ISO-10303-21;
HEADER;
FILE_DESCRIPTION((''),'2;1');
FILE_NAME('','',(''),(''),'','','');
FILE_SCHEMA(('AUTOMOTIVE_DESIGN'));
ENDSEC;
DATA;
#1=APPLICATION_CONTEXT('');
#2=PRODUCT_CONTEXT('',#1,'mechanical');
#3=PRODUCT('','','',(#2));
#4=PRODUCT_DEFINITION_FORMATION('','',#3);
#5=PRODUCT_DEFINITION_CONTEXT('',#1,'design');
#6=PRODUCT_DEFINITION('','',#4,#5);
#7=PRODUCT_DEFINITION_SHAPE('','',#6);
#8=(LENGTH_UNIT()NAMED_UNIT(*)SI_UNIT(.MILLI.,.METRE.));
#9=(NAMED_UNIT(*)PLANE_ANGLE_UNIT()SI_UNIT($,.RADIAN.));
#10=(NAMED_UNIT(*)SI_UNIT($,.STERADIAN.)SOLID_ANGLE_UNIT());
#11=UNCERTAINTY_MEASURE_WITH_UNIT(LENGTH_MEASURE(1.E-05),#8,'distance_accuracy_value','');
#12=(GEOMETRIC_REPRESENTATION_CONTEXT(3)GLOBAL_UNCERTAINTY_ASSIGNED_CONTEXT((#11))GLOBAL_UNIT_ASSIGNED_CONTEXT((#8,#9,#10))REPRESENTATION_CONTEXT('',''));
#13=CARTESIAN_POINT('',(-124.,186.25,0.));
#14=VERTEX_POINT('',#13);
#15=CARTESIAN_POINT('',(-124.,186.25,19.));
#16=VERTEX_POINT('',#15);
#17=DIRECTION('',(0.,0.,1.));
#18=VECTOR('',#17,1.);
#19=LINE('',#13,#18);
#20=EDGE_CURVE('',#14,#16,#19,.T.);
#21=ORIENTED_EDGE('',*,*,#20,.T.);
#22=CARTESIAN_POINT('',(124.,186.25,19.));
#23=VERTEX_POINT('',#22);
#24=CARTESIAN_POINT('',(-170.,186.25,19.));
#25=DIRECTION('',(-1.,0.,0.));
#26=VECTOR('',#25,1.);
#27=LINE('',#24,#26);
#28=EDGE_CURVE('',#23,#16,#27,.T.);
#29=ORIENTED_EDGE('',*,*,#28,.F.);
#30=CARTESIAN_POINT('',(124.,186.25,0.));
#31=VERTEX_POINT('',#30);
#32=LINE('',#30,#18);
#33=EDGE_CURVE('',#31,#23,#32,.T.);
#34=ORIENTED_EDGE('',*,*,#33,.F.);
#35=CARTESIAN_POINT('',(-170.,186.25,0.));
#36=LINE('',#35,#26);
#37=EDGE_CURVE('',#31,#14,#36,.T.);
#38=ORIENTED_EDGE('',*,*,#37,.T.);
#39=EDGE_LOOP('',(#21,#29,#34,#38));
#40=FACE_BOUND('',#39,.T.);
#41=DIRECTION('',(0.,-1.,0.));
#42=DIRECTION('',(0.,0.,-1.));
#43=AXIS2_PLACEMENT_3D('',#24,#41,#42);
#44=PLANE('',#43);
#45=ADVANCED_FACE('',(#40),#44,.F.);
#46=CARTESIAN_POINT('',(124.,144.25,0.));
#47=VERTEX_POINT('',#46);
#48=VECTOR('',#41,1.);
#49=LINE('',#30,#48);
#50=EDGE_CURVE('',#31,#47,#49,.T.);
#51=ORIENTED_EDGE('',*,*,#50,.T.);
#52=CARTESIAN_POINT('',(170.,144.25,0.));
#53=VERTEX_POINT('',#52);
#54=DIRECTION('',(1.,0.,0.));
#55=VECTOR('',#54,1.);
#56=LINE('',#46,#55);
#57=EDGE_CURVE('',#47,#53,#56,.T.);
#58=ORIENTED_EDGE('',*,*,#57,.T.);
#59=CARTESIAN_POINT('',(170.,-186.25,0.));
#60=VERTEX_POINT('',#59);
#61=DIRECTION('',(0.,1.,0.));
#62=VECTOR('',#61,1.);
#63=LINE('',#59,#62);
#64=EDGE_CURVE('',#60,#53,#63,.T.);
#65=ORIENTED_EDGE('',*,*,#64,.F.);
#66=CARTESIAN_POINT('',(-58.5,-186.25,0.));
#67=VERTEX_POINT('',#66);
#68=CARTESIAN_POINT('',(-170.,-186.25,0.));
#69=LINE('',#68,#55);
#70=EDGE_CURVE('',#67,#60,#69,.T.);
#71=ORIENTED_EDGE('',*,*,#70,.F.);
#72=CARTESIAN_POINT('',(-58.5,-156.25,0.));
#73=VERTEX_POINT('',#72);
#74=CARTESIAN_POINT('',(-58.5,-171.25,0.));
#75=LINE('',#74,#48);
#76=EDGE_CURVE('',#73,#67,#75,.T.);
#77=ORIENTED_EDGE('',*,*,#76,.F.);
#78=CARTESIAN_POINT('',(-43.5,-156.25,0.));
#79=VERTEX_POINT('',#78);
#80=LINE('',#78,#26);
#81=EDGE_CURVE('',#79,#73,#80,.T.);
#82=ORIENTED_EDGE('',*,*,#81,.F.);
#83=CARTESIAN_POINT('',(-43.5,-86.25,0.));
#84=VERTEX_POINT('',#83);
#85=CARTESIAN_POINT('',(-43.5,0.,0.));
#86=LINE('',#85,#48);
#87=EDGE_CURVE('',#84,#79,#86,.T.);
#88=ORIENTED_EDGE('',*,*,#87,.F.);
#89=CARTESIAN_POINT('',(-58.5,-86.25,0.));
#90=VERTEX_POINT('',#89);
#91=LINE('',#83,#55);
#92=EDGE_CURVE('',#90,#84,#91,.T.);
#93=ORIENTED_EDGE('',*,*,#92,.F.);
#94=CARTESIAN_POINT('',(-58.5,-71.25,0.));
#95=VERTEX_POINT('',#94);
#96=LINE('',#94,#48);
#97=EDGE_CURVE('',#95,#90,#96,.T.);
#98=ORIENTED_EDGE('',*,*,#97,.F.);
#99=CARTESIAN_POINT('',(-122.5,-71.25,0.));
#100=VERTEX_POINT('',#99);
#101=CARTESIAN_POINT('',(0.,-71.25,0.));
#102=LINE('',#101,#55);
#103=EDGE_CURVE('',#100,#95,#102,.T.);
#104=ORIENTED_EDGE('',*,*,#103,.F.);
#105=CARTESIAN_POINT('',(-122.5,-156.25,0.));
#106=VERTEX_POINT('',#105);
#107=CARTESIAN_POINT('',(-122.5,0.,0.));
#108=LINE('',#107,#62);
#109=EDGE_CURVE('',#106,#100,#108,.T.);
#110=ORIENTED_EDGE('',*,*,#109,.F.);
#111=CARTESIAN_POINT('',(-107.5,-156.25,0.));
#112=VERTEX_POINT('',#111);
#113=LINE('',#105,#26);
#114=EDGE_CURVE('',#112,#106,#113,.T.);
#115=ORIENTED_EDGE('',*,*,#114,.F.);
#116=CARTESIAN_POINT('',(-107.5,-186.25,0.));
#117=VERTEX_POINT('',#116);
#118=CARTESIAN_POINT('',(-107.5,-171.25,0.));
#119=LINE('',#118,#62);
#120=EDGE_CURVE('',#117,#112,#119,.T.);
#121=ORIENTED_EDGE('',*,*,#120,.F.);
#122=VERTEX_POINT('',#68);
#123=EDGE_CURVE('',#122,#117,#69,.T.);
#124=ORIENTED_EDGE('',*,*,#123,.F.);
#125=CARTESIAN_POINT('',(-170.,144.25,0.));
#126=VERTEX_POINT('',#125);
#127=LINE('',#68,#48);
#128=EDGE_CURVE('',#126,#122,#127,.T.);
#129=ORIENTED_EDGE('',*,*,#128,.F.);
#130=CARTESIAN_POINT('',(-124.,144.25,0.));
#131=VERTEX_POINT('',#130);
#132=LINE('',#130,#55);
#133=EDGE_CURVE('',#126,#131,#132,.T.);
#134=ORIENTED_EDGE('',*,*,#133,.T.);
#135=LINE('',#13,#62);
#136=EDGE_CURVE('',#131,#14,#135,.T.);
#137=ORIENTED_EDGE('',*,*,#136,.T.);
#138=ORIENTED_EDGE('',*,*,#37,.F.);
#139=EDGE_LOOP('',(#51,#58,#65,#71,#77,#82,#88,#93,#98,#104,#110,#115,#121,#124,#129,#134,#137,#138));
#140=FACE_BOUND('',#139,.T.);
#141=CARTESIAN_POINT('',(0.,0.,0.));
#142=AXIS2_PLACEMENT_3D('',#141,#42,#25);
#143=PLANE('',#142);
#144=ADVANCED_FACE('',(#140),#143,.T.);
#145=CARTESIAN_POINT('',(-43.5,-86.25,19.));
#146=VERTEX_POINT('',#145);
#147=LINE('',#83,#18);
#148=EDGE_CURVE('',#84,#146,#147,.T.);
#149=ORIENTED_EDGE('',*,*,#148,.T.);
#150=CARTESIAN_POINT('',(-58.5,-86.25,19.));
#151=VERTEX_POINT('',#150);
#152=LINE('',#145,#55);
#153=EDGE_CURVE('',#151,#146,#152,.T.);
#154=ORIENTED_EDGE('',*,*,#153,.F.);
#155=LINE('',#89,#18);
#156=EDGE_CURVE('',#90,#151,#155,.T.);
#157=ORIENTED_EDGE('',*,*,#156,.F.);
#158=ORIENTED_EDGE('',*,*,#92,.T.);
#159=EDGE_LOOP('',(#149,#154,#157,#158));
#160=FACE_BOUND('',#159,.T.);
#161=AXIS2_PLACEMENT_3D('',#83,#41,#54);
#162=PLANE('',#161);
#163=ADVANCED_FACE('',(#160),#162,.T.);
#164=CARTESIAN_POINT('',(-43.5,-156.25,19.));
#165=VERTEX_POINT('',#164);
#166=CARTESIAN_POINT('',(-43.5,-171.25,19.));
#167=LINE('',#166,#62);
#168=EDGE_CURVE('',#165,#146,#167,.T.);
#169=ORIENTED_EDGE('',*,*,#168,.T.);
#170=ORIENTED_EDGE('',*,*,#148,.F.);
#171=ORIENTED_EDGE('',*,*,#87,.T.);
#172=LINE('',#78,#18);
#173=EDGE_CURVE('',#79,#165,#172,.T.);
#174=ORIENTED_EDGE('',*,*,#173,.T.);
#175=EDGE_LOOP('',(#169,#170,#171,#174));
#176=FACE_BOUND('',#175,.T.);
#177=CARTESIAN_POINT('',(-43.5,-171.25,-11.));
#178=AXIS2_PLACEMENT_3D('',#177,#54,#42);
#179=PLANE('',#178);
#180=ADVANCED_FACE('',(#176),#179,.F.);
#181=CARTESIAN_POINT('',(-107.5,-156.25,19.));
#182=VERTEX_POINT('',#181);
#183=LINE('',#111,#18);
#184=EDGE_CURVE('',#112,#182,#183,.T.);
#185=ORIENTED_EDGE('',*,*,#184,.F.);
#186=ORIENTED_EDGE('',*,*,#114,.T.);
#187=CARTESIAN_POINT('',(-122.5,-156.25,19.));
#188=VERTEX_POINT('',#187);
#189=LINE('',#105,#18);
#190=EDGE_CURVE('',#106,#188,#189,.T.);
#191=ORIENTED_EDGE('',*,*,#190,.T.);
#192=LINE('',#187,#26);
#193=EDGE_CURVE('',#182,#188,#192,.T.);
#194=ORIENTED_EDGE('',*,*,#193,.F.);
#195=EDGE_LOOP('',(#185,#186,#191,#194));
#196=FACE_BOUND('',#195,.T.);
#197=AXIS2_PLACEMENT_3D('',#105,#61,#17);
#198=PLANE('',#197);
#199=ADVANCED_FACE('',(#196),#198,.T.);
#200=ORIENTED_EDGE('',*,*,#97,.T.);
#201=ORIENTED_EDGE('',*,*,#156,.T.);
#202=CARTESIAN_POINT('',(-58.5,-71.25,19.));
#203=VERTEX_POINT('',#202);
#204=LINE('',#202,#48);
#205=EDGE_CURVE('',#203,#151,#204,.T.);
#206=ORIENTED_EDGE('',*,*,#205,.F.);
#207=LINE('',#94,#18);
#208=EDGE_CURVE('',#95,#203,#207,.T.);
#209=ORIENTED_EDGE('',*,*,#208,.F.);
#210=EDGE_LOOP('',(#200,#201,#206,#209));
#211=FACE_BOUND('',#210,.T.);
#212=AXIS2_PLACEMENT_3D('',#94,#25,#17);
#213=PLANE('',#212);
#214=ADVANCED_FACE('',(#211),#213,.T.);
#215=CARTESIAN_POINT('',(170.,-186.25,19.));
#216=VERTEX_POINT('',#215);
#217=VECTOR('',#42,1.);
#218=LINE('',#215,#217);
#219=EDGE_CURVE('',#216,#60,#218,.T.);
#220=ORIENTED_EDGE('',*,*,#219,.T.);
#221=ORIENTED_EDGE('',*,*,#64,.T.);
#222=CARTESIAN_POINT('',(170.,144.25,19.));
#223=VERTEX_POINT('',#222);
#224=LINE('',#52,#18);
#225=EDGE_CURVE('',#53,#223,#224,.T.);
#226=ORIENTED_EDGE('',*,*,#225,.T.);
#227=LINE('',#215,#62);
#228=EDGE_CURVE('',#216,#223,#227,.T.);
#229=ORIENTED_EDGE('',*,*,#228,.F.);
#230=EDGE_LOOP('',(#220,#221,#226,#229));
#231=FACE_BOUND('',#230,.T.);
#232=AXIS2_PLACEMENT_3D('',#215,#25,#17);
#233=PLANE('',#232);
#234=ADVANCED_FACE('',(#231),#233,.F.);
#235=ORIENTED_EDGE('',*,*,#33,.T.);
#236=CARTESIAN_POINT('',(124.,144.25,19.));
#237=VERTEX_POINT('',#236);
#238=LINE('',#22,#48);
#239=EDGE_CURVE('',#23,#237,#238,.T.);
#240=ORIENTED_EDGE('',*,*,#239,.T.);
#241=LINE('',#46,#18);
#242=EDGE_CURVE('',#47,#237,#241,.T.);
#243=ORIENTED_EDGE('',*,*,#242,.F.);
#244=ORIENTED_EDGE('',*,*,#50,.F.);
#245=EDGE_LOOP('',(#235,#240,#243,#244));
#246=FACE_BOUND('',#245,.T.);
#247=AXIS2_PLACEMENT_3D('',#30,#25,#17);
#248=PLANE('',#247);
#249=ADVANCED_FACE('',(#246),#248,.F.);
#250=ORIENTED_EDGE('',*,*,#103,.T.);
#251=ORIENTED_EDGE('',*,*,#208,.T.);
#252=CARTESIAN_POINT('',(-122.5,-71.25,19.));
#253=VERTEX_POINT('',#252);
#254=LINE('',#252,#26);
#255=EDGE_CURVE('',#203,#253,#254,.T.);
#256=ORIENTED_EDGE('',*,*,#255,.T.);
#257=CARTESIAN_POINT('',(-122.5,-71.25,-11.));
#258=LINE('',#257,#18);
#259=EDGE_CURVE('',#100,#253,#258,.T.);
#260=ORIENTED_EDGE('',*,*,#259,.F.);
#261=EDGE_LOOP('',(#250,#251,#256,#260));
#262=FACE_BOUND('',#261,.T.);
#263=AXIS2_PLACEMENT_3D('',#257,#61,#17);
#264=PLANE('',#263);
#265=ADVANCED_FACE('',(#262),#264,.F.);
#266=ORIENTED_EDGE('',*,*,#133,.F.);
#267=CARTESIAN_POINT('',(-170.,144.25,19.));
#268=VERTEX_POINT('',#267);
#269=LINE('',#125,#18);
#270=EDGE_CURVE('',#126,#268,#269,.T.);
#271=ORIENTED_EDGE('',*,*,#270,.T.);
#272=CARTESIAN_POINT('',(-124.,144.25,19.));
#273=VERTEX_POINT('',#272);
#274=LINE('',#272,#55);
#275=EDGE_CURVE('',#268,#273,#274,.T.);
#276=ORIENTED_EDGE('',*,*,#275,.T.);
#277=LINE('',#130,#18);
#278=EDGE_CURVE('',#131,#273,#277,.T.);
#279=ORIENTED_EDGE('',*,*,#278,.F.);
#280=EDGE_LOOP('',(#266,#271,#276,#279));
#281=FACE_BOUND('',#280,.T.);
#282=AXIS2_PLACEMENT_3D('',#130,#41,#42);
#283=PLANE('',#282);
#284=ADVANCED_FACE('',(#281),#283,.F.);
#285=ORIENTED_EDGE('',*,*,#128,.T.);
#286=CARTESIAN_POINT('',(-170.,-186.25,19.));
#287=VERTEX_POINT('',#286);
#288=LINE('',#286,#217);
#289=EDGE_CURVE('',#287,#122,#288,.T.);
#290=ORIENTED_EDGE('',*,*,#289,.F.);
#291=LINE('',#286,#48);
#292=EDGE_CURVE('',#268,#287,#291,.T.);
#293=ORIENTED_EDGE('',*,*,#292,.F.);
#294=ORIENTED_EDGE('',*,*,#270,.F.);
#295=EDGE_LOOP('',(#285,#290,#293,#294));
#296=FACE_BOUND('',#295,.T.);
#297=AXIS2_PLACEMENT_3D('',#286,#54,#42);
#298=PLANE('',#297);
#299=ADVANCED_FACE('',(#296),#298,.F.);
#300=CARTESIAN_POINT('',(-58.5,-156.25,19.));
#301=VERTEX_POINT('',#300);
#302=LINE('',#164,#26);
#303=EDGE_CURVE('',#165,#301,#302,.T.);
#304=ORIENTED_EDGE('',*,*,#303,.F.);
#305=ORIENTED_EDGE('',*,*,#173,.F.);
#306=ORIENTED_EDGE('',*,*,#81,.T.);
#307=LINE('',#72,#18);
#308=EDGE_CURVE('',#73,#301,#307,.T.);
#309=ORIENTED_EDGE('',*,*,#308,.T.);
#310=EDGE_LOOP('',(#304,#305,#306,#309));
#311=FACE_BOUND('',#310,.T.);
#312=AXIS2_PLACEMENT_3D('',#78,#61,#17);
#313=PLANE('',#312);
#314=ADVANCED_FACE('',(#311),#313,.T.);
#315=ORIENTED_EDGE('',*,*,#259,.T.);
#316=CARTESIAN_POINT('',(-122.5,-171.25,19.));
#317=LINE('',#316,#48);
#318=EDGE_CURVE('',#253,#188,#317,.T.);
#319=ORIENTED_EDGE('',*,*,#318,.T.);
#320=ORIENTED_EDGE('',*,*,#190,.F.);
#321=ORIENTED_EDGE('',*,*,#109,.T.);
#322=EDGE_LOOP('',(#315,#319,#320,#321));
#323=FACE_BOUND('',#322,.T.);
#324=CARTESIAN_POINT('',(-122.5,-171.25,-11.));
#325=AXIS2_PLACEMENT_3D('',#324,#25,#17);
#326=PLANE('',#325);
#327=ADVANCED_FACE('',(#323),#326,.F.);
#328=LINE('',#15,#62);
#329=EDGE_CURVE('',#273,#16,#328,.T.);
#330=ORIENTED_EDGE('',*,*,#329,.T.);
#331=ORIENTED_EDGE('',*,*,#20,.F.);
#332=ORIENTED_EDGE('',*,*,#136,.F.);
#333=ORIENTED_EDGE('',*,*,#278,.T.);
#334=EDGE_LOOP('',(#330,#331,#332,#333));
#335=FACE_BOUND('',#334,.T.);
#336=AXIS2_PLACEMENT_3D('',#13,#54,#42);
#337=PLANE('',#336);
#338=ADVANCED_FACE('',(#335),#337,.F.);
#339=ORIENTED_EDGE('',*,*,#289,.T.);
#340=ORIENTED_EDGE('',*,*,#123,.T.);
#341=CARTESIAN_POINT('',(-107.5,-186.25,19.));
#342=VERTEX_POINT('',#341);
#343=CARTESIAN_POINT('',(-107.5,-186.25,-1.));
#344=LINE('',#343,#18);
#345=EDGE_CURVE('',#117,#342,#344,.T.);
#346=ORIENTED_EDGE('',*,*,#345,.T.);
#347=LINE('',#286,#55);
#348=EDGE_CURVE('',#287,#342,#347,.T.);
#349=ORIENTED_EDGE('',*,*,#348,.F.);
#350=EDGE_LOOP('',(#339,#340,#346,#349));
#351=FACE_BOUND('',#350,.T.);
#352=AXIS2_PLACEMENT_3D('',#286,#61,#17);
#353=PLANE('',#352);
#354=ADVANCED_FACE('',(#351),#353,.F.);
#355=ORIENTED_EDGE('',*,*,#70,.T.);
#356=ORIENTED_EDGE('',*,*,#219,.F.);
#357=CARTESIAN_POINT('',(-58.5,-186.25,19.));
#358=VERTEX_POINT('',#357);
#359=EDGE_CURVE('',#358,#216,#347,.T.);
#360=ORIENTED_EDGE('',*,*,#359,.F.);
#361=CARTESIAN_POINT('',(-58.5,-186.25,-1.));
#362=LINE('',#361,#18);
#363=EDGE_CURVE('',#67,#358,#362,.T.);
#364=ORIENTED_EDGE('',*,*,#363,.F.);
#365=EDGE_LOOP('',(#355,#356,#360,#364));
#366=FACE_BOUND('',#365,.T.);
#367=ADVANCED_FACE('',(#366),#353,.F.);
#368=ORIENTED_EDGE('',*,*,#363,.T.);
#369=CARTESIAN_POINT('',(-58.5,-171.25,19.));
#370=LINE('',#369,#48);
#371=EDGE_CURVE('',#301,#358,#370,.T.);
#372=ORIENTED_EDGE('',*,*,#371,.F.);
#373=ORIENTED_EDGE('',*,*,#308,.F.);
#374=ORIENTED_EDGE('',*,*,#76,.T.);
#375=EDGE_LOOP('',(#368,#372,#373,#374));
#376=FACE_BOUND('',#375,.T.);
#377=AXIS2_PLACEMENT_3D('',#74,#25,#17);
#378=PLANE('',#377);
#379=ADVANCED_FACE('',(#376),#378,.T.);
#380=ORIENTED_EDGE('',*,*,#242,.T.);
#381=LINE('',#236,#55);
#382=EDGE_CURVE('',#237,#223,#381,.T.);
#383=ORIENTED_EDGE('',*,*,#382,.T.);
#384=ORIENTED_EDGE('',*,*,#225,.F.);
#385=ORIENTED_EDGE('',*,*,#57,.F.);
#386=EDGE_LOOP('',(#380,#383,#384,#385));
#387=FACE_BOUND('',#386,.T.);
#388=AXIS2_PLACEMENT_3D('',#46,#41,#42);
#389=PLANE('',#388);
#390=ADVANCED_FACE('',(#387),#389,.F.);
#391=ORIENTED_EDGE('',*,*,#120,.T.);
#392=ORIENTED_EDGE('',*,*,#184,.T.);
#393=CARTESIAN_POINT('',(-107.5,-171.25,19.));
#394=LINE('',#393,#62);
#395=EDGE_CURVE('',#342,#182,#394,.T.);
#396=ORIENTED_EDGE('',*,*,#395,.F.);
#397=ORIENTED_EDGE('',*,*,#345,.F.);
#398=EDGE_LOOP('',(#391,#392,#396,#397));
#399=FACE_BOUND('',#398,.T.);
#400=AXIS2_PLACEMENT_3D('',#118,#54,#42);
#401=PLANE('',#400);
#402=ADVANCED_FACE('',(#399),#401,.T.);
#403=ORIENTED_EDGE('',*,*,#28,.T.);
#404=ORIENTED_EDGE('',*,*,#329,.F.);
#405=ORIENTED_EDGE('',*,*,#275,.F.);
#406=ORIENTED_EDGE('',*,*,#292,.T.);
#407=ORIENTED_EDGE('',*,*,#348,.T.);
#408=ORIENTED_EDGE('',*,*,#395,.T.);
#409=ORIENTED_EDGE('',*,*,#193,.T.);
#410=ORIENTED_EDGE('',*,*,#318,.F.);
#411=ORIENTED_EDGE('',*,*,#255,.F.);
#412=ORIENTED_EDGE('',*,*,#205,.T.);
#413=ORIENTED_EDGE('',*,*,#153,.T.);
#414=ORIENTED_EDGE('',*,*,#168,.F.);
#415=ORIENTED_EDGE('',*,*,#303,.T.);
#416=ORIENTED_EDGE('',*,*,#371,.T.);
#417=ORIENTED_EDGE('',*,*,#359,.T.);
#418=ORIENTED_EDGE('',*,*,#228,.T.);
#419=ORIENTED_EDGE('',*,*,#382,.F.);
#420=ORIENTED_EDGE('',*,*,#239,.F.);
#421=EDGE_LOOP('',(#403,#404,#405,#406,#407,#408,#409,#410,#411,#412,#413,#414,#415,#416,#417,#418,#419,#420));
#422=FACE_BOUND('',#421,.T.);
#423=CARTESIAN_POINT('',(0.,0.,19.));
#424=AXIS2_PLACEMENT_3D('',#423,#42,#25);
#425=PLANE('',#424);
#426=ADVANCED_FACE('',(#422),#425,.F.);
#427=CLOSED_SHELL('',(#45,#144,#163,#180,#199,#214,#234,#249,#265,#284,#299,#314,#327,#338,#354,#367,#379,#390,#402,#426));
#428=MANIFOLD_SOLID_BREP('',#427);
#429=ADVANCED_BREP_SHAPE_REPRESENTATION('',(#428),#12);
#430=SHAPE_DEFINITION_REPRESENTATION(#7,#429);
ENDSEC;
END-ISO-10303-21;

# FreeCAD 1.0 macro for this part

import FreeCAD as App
import Part
import Sketcher
Q = App.Units.Quantity


def add_polygon(sketch, points):
    """Adds a closed chain of lines whose ends are joined by coincident constraints."""
    first, n = sketch.GeometryCount, len(points)
    for a, b in zip(points, points[1:] + points[:1]):
        sketch.addGeometry(Part.LineSegment(App.Vector(*a, 0), App.Vector(*b, 0)), False)
    for i in range(n):
        sketch.addConstraint(Sketcher.Constraint("Coincident", first + i, 2, first + (i + 1) % n, 1))

doc = App.newDocument("Part")
body = doc.addObject("PartDesign::Body", "Body")

# Sketch on XY plane
sketch1 = body.newObject("Sketcher::SketchObject", "Sketch")
sketch1.AttachmentSupport = (doc.getObject("XY_Plane"), [""])
sketch1.MapMode = "FlatFace"
add_polygon(sketch1, [(-170, 186), (-170, -186), (170, -186), (170, 186)])  # lines 0-3
sketch1.addConstraint([
    Sketcher.Constraint("Vertical", 0),
    Sketcher.Constraint("Horizontal", 1),
    Sketcher.Constraint("Vertical", 2),
    Sketcher.Constraint("Horizontal", 3),
    Sketcher.Constraint("Symmetric", 0, 2, 2, 2, -1, 1),
    Sketcher.Constraint("DistanceX", 1, 1, 1, 2, Q("340 mm")),
    Sketcher.Constraint("DistanceY", 0, 2, 0, 1, Q("372.5 mm")),
])
pad1 = body.newObject("PartDesign::Pad", "Pad")
pad1.Profile = sketch1
pad1.Length = 19

# Sketch on XY plane
sketch2 = body.newObject("Sketcher::SketchObject", "Sketch001")
sketch2.AttachmentSupport = (doc.getObject("XY_Plane"), [""])
sketch2.MapMode = "FlatFace"
sketch2.AttachmentOffset = App.Placement(App.Vector(0, 0, 19), App.Rotation())
add_polygon(sketch2, [(-170, 186), (-170, 144), (-124, 144), (-124, 186)])  # lines 0-3
add_polygon(sketch2, [(124, 186), (124, 144), (170, 144), (170, 186)])  # lines 4-7
sketch2.addConstraint([
    Sketcher.Constraint("Vertical", 0),
    Sketcher.Constraint("Horizontal", 1),
    Sketcher.Constraint("Vertical", 2),
    Sketcher.Constraint("Horizontal", 3),
    Sketcher.Constraint("Vertical", 4),
    Sketcher.Constraint("Horizontal", 5),
    Sketcher.Constraint("Vertical", 6),
    Sketcher.Constraint("Horizontal", 7),
    Sketcher.Constraint("Symmetric", 1, 2, 4, 2, -2),
    Sketcher.Constraint("Symmetric", 3, 2, 6, 2, -2),
    Sketcher.Constraint("DistanceX", 1, 1, 1, 2, Q("46 mm")),
    Sketcher.Constraint("DistanceY", 0, 2, 0, 1, Q("42 mm")),
    Sketcher.Constraint("DistanceX", 0, 2, -1, 1, Q("170 mm")),
    Sketcher.Constraint("DistanceY", -1, 1, 0, 2, Q("144.25 mm")),
])
pocket1 = body.newObject("PartDesign::Pocket", "Pocket")
pocket1.Profile = sketch2
pocket1.Type = "ThroughAll"

# Sketch on XY plane
sketch3 = body.newObject("Sketcher::SketchObject", "Sketch002")
sketch3.AttachmentSupport = (doc.getObject("XY_Plane"), [""])
sketch3.MapMode = "FlatFace"
sketch3.AttachmentOffset = App.Placement(App.Vector(0, 0, 19), App.Rotation())
add_polygon(sketch3, [(-122, -71), (-122, -171), (-44, -171), (-44, -71)])  # lines 0-3
sketch3.addConstraint([
    Sketcher.Constraint("Vertical", 0),
    Sketcher.Constraint("Horizontal", 1),
    Sketcher.Constraint("Vertical", 2),
    Sketcher.Constraint("Horizontal", 3),
    Sketcher.Constraint("DistanceX", 1, 1, 1, 2, Q("79 mm")),
    Sketcher.Constraint("DistanceY", 0, 2, 0, 1, Q("100 mm")),
    Sketcher.Constraint("DistanceX", 0, 2, -1, 1, Q("122.5 mm")),
    Sketcher.Constraint("DistanceY", 0, 2, -1, 1, Q("171.25 mm")),
])
pocket2 = body.newObject("PartDesign::Pocket", "Pocket001")
pocket2.Profile = sketch3
pocket2.Length = 30

# Sketch on XY plane
sketch4 = body.newObject("Sketcher::SketchObject", "Sketch003")
sketch4.AttachmentSupport = (doc.getObject("XY_Plane"), [""])
sketch4.MapMode = "FlatFace"
sketch4.AttachmentOffset = App.Placement(App.Vector(0, 0, 19), App.Rotation())
add_polygon(sketch4, [(-58, -156), (-58, -171), (-44, -171), (-44, -156)])  # lines 0-3
add_polygon(sketch4, [(-122, -156), (-122, -171), (-108, -171), (-108, -156)])  # lines 4-7
add_polygon(sketch4, [(-58, -71), (-58, -86), (-44, -86), (-44, -71)])  # lines 8-11
sketch4.addConstraint([
    Sketcher.Constraint("Vertical", 0),
    Sketcher.Constraint("Horizontal", 1),
    Sketcher.Constraint("Vertical", 2),
    Sketcher.Constraint("Horizontal", 3),
    Sketcher.Constraint("Vertical", 4),
    Sketcher.Constraint("Horizontal", 5),
    Sketcher.Constraint("Vertical", 6),
    Sketcher.Constraint("Horizontal", 7),
    Sketcher.Constraint("Vertical", 8),
    Sketcher.Constraint("Horizontal", 9),
    Sketcher.Constraint("Vertical", 10),
    Sketcher.Constraint("Horizontal", 11),
    Sketcher.Constraint("Horizontal", 1, 2, 4, 2),
    Sketcher.Constraint("Horizontal", 3, 2, 6, 2),
    Sketcher.Constraint("Vertical", 3, 2, 8, 2),
    Sketcher.Constraint("Vertical", 2, 2, 9, 2),
    Sketcher.Constraint("Equal", 3, 5),
    Sketcher.Constraint("Equal", 11, 0),
    Sketcher.Constraint("Equal", 6, 8),
    Sketcher.Constraint("DistanceX", 1, 1, 1, 2, Q("15 mm")),
    Sketcher.Constraint("DistanceX", 4, 2, 0, 2, Q("64 mm")),
    Sketcher.Constraint("DistanceY", 3, 2, 8, 2, Q("70 mm")),
    Sketcher.Constraint("DistanceX", 0, 2, -1, 1, Q("58.5 mm")),
    Sketcher.Constraint("DistanceY", 0, 2, -1, 1, Q("171.25 mm")),
])
pad2 = body.newObject("PartDesign::Pad", "Pad001")
pad2.Profile = sketch4
pad2.Length = 19
pad2.Reversed = True

# Sketch on XY plane
sketch5 = body.newObject("Sketcher::SketchObject", "Sketch004")
sketch5.AttachmentSupport = (doc.getObject("XY_Plane"), [""])
sketch5.MapMode = "FlatFace"
sketch5.AttachmentOffset = App.Placement(App.Vector(0, 0, 19), App.Rotation())
add_polygon(sketch5, [(-108, -171), (-108, -186), (-58, -186), (-58, -171)])  # lines 0-3
sketch5.addConstraint([
    Sketcher.Constraint("Vertical", 0),
    Sketcher.Constraint("Horizontal", 1),
    Sketcher.Constraint("Vertical", 2),
    Sketcher.Constraint("Horizontal", 3),
    Sketcher.Constraint("DistanceX", 1, 1, 1, 2, Q("49 mm")),
    Sketcher.Constraint("DistanceY", 0, 2, 0, 1, Q("15 mm")),
    Sketcher.Constraint("DistanceX", 0, 2, -1, 1, Q("107.5 mm")),
    Sketcher.Constraint("DistanceY", 0, 2, -1, 1, Q("186.25 mm")),
])
pocket3 = body.newObject("PartDesign::Pocket", "Pocket002")
pocket3.Profile = sketch5
pocket3.Length = 20

doc.recompute()
